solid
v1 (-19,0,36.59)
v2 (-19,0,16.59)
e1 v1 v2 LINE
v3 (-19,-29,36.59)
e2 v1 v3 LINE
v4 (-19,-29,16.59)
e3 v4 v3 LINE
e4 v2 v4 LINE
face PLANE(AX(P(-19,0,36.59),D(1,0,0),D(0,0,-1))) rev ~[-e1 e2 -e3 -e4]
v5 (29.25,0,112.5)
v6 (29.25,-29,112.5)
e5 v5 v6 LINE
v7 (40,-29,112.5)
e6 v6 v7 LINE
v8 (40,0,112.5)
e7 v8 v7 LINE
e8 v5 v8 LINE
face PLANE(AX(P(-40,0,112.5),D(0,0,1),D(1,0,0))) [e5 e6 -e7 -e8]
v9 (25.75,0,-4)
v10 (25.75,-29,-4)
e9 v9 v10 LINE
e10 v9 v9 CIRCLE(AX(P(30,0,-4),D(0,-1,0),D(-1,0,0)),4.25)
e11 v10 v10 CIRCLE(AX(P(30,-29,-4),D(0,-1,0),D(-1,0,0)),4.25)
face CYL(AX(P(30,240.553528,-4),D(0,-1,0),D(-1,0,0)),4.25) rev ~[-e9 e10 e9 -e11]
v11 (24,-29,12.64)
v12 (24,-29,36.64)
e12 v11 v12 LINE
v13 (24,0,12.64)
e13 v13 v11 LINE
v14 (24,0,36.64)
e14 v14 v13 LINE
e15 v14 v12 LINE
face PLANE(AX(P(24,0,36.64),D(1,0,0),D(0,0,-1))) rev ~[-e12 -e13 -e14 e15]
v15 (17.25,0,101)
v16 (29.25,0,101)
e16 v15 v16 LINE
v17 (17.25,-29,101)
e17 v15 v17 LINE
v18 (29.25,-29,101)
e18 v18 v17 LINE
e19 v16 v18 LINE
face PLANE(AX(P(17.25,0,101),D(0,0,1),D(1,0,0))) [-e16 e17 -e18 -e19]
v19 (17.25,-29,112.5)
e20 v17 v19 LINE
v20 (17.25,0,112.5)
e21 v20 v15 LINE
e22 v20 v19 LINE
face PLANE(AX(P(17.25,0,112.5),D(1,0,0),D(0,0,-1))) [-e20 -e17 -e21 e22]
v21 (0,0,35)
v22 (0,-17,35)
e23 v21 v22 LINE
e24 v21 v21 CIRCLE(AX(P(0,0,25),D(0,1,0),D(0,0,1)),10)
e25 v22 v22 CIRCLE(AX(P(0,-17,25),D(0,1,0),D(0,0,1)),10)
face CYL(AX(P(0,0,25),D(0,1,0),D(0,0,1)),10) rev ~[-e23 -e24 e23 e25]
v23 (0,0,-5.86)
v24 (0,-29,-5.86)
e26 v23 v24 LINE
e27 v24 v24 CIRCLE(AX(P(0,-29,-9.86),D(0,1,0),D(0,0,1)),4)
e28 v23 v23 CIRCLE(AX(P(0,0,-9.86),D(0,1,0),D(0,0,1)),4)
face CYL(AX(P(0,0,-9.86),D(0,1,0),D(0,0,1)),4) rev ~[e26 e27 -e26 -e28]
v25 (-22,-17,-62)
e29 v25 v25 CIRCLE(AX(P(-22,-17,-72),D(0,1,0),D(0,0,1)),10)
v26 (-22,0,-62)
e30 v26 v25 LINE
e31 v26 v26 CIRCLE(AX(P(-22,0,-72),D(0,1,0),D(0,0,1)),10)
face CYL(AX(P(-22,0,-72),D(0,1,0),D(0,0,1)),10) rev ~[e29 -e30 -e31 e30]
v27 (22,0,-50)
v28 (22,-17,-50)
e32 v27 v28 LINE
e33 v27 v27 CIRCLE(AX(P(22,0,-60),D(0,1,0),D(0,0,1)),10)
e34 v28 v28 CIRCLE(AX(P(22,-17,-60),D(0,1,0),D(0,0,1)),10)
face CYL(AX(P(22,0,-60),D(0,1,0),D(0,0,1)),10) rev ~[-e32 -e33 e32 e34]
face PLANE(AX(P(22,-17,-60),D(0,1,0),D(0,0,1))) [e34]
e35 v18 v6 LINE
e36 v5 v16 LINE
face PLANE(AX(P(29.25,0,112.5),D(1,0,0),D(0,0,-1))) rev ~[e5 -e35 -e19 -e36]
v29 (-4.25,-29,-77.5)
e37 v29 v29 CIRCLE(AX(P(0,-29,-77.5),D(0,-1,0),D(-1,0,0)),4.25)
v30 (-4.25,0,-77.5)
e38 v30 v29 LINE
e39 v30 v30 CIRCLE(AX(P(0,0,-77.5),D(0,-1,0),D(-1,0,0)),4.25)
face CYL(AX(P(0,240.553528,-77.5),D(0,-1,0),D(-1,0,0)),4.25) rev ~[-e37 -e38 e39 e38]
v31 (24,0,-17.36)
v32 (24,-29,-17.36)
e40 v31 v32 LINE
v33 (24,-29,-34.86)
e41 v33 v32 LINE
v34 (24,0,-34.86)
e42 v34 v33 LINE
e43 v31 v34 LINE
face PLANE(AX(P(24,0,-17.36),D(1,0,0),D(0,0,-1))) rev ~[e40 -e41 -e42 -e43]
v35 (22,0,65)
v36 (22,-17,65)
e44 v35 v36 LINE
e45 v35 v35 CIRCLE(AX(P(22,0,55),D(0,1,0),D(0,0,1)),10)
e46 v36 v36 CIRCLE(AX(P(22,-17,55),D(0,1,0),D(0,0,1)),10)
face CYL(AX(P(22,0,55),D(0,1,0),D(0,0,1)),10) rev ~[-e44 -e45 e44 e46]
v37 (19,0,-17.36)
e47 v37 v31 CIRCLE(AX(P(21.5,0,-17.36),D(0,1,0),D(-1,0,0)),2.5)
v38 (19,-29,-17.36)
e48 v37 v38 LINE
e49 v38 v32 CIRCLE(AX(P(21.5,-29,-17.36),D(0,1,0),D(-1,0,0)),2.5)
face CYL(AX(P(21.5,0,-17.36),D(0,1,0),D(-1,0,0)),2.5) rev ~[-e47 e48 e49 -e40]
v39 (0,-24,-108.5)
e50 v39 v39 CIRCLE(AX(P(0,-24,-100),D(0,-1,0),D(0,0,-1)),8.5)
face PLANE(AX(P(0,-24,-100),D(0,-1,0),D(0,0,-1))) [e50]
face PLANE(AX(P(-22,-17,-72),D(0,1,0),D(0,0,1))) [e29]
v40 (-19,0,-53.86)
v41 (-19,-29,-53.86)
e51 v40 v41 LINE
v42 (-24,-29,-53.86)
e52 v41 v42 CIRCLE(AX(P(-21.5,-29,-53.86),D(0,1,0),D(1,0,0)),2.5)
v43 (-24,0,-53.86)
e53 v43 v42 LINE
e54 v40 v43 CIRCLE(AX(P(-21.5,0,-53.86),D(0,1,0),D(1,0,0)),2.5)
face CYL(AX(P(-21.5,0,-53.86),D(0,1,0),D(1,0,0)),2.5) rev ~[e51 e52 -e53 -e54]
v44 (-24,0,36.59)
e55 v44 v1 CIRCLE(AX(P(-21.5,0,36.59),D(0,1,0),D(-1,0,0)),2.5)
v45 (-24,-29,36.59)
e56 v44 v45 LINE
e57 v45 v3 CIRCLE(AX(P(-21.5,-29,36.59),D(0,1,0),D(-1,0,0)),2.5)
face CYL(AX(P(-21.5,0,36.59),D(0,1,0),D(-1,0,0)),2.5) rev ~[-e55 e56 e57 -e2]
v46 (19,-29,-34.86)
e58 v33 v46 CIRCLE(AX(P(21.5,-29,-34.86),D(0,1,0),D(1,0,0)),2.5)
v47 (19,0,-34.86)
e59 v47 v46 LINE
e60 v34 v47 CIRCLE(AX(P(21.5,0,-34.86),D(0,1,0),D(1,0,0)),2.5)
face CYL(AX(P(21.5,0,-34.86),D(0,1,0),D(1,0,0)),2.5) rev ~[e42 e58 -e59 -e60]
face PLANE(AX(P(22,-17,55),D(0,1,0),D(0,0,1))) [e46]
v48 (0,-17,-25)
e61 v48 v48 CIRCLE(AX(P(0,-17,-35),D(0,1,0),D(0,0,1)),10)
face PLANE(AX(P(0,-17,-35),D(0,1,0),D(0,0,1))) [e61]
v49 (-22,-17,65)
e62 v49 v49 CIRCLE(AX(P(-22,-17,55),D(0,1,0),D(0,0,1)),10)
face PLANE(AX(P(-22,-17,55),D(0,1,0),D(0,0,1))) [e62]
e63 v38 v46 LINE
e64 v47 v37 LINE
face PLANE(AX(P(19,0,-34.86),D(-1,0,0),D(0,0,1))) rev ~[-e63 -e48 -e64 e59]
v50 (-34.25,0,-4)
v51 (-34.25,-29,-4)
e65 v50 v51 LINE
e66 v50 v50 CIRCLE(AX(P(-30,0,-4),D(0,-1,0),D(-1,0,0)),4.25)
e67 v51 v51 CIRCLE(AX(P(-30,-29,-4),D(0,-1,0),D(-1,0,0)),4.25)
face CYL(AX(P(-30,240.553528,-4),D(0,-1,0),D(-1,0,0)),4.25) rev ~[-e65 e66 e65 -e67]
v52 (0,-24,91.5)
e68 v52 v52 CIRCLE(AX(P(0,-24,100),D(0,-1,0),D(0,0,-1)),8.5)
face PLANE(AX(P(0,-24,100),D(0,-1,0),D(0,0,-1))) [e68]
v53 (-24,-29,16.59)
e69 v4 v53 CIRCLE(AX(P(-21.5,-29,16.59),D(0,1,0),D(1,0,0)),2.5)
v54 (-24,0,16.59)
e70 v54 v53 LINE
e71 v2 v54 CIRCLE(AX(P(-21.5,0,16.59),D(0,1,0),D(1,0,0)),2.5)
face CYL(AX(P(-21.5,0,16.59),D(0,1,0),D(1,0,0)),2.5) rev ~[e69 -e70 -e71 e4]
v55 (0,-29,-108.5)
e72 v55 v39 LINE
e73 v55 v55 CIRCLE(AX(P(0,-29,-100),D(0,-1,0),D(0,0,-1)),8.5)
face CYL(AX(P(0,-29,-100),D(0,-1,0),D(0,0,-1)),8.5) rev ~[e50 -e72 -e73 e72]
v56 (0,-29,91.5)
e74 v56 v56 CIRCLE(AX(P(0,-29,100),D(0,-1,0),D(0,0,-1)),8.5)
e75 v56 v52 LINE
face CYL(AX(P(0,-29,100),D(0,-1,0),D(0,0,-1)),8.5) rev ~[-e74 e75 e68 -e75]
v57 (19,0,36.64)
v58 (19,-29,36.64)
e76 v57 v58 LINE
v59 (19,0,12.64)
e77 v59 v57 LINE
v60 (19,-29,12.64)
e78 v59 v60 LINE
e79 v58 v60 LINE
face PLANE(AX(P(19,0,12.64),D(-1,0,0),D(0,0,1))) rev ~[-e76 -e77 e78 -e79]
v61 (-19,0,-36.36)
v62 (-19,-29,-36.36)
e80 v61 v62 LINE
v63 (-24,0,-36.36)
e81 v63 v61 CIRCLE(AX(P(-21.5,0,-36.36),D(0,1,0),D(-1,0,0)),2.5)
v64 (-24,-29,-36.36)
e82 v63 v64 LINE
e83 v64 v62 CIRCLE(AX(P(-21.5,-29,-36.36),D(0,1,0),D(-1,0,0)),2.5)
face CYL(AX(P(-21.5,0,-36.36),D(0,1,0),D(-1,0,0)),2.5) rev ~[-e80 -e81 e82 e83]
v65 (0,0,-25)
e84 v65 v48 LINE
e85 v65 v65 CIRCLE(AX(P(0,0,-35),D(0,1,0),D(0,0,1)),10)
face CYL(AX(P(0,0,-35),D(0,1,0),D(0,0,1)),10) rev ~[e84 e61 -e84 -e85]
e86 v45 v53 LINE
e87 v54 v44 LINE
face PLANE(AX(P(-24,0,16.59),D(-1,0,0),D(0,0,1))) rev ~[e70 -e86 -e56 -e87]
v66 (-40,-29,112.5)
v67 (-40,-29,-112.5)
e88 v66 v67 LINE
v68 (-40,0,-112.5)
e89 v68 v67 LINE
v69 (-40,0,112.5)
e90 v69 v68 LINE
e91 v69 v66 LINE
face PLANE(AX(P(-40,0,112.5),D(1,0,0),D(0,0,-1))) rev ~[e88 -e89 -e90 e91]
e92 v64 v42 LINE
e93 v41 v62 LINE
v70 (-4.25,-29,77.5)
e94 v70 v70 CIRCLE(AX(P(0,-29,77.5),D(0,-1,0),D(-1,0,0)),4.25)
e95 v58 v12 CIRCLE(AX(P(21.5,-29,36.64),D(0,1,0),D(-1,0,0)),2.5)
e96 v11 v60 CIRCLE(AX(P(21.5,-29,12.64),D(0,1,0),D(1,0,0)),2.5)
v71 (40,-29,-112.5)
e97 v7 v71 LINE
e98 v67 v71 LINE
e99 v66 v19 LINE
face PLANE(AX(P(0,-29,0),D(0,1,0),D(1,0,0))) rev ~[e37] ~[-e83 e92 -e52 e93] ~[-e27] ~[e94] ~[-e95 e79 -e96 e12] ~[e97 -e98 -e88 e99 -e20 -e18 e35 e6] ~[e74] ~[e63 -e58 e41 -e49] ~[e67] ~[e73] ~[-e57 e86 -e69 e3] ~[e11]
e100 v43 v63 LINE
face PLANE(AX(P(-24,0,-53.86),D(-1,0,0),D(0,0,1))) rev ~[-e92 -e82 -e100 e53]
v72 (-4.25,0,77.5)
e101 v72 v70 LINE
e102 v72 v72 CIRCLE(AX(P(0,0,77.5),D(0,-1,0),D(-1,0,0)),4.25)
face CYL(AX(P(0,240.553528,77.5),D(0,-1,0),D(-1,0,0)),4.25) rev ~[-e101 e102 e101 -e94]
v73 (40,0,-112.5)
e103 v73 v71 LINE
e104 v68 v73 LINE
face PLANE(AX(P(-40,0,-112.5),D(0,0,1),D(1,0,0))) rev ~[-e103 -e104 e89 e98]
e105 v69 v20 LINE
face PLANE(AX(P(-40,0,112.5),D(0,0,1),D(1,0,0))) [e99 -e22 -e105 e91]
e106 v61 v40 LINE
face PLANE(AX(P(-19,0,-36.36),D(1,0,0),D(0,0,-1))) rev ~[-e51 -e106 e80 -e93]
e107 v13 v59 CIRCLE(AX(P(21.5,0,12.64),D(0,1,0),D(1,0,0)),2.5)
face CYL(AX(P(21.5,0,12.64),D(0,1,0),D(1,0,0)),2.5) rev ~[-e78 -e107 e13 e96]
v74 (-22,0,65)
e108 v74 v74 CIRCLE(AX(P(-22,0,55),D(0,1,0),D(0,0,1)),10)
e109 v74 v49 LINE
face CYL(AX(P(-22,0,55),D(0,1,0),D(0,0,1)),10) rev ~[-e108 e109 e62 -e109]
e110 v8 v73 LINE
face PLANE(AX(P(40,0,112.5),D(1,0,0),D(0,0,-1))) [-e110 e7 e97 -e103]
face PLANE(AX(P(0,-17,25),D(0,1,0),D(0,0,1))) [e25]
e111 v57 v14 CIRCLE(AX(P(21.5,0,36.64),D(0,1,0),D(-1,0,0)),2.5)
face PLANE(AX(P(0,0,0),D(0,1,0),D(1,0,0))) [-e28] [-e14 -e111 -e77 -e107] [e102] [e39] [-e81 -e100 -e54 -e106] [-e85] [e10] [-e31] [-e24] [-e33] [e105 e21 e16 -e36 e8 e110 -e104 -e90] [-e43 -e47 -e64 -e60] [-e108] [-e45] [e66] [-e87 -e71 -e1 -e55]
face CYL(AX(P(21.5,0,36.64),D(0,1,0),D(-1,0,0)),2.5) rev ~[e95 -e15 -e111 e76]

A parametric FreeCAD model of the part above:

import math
import FreeCAD as App
import Part
import Sketcher

V = App.Vector
Q = App.Units.Quantity

doc = App.newDocument("Part")
body = doc.addObject("PartDesign::Body", "Body")

# Sketch on XZ plane
sketch1 = body.newObject("Sketcher::SketchObject", "Sketch")
sketch1.AttachmentSupport = (doc.getObject("XZ_Plane"), [""])
sketch1.MapMode = "FlatFace"
sketch1.addGeometry(Part.LineSegment(V(-40, -112, 0), V(-40, 112, 0)), False)
sketch1.addGeometry(Part.LineSegment(V(-40, 112, 0), V(40, 112, 0)), False)
sketch1.addGeometry(Part.LineSegment(V(40, 112, 0), V(40, -112, 0)), False)
sketch1.addGeometry(Part.LineSegment(V(40, -112, 0), V(-40, -112, 0)), False)
sketch1.addConstraint(Sketcher.Constraint("Coincident", 0, 2, 1, 1))
sketch1.addConstraint(Sketcher.Constraint("Coincident", 1, 2, 2, 1))
sketch1.addConstraint(Sketcher.Constraint("Coincident", 2, 2, 3, 1))
sketch1.addConstraint(Sketcher.Constraint("Coincident", 3, 2, 0, 1))
sketch1.addConstraint(Sketcher.Constraint("Vertical", 0))
sketch1.addConstraint(Sketcher.Constraint("Horizontal", 1))
sketch1.addConstraint(Sketcher.Constraint("Vertical", 2))
sketch1.addConstraint(Sketcher.Constraint("Horizontal", 3))
sketch1.addConstraint(Sketcher.Constraint("Symmetric", 0, 2, 2, 2, -1, 1))
sketch1.addConstraint(Sketcher.Constraint("DistanceX", 1, 1, 1, 2, Q("80 mm")))
sketch1.addConstraint(Sketcher.Constraint("DistanceY", 0, 1, 0, 2, Q("225 mm")))
pad1 = body.newObject("PartDesign::Pad", "Pad")
pad1.Profile = sketch1
pad1.Length = 29

# Sketch on XZ plane
sketch2 = body.newObject("Sketcher::SketchObject", "Sketch001")
sketch2.AttachmentSupport = (doc.getObject("XZ_Plane"), [""])
sketch2.MapMode = "FlatFace"
sketch2.addGeometry(Part.LineSegment(V(-19, -36.4, 0), V(-19, -53.9, 0)), False)
sketch2.addGeometry(Part.ArcOfCircle(Part.Circle(V(-21.5, -53.9, 0), V(0, 0, 1), 2.5), math.radians(180), math.radians(360)), False)
sketch2.addGeometry(Part.LineSegment(V(-24, -53.9, 0), V(-24, -36.4, 0)), False)
sketch2.addGeometry(Part.ArcOfCircle(Part.Circle(V(-21.5, -36.4, 0), V(0, 0, 1), 2.5), math.radians(0), math.radians(180)), False)
sketch2.addConstraint(Sketcher.Constraint("Tangent", 0, 2, 1, 2))
sketch2.addConstraint(Sketcher.Constraint("Tangent", 1, 1, 2, 1))
sketch2.addConstraint(Sketcher.Constraint("Tangent", 2, 2, 3, 2))
sketch2.addConstraint(Sketcher.Constraint("Tangent", 3, 1, 0, 1))
sketch2.addConstraint(Sketcher.Constraint("Vertical", 0))
sketch2.addConstraint(Sketcher.Constraint("Vertical", 2))
sketch2.addConstraint(Sketcher.Constraint("Radius", 1, Q("2.5 mm")))
sketch2.addConstraint(Sketcher.Constraint("DistanceY", 0, 2, 0, 1, Q("17.5 mm")))
sketch2.addConstraint(Sketcher.Constraint("DistanceX", 0, 2, -1, 1, Q("19 mm")))
sketch2.addConstraint(Sketcher.Constraint("DistanceY", 1, 3, -1, 1, Q("53.86 mm")))
pocket1 = body.newObject("PartDesign::Pocket", "Pocket")
pocket1.Profile = sketch2
pocket1.Type = "UpToFirst"
pocket1.Reversed = True

# Sketch on XZ plane
sketch3 = body.newObject("Sketcher::SketchObject", "Sketch002")
sketch3.AttachmentSupport = (doc.getObject("XZ_Plane"), [""])
sketch3.MapMode = "FlatFace"
sketch3.addGeometry(Part.LineSegment(V(-19, 36.6, 0), V(-19, 16.6, 0)), False)
sketch3.addGeometry(Part.ArcOfCircle(Part.Circle(V(-21.5, 16.6, 0), V(0, 0, 1), 2.5), math.radians(180), math.radians(360)), False)
sketch3.addGeometry(Part.LineSegment(V(-24, 16.6, 0), V(-24, 36.6, 0)), False)
sketch3.addGeometry(Part.ArcOfCircle(Part.Circle(V(-21.5, 36.6, 0), V(0, 0, 1), 2.5), math.radians(0), math.radians(180)), False)
sketch3.addConstraint(Sketcher.Constraint("Tangent", 0, 2, 1, 2))
sketch3.addConstraint(Sketcher.Constraint("Tangent", 1, 1, 2, 1))
sketch3.addConstraint(Sketcher.Constraint("Tangent", 2, 2, 3, 2))
sketch3.addConstraint(Sketcher.Constraint("Tangent", 3, 1, 0, 1))
sketch3.addConstraint(Sketcher.Constraint("Vertical", 0))
sketch3.addConstraint(Sketcher.Constraint("Vertical", 2))
sketch3.addConstraint(Sketcher.Constraint("Radius", 1, Q("2.5 mm")))
sketch3.addConstraint(Sketcher.Constraint("DistanceY", 0, 2, 0, 1, Q("20 mm")))
sketch3.addConstraint(Sketcher.Constraint("DistanceX", 0, 2, -1, 1, Q("19 mm")))
sketch3.addConstraint(Sketcher.Constraint("DistanceY", -1, 1, 1, 3, Q("16.59 mm")))
pocket2 = body.newObject("PartDesign::Pocket", "Pocket001")
pocket2.Profile = sketch3
pocket2.Type = "UpToFirst"
pocket2.Reversed = True

# Sketch on XZ plane
sketch4 = body.newObject("Sketcher::SketchObject", "Sketch003")
sketch4.AttachmentSupport = (doc.getObject("XZ_Plane"), [""])
sketch4.MapMode = "FlatFace"
sketch4.addGeometry(Part.LineSegment(V(24, -17.4, 0), V(24, -34.9, 0)), False)
sketch4.addGeometry(Part.ArcOfCircle(Part.Circle(V(21.5, -34.9, 0), V(0, 0, 1), 2.5), math.radians(180), math.radians(360)), False)
sketch4.addGeometry(Part.LineSegment(V(19, -34.9, 0), V(19, -17.4, 0)), False)
sketch4.addGeometry(Part.ArcOfCircle(Part.Circle(V(21.5, -17.4, 0), V(0, 0, 1), 2.5), math.radians(0), math.radians(180)), False)
sketch4.addConstraint(Sketcher.Constraint("Tangent", 0, 2, 1, 2))
sketch4.addConstraint(Sketcher.Constraint("Tangent", 1, 1, 2, 1))
sketch4.addConstraint(Sketcher.Constraint("Tangent", 2, 2, 3, 2))
sketch4.addConstraint(Sketcher.Constraint("Tangent", 3, 1, 0, 1))
sketch4.addConstraint(Sketcher.Constraint("Vertical", 0))
sketch4.addConstraint(Sketcher.Constraint("Vertical", 2))
sketch4.addConstraint(Sketcher.Constraint("Radius", 1, Q("2.5 mm")))
sketch4.addConstraint(Sketcher.Constraint("DistanceY", 0, 2, 0, 1, Q("17.5 mm")))
sketch4.addConstraint(Sketcher.Constraint("DistanceX", -1, 1, 0, 2, Q("24 mm")))
sketch4.addConstraint(Sketcher.Constraint("DistanceY", 1, 3, -1, 1, Q("34.86 mm")))
pocket3 = body.newObject("PartDesign::Pocket", "Pocket002")
pocket3.Profile = sketch4
pocket3.Type = "UpToFirst"
pocket3.Reversed = True

# Sketch on XZ plane
sketch5 = body.newObject("Sketcher::SketchObject", "Sketch004")
sketch5.AttachmentSupport = (doc.getObject("XZ_Plane"), [""])
sketch5.MapMode = "FlatFace"
sketch5.addGeometry(Part.LineSegment(V(24, 36.6, 0), V(24, 12.6, 0)), False)
sketch5.addGeometry(Part.ArcOfCircle(Part.Circle(V(21.5, 12.6, 0), V(0, 0, 1), 2.5), math.radians(180), math.radians(360)), False)
sketch5.addGeometry(Part.LineSegment(V(19, 12.6, 0), V(19, 36.6, 0)), False)
sketch5.addGeometry(Part.ArcOfCircle(Part.Circle(V(21.5, 36.6, 0), V(0, 0, 1), 2.5), math.radians(0), math.radians(180)), False)
sketch5.addConstraint(Sketcher.Constraint("Tangent", 0, 2, 1, 2))
sketch5.addConstraint(Sketcher.Constraint("Tangent", 1, 1, 2, 1))
sketch5.addConstraint(Sketcher.Constraint("Tangent", 2, 2, 3, 2))
sketch5.addConstraint(Sketcher.Constraint("Tangent", 3, 1, 0, 1))
sketch5.addConstraint(Sketcher.Constraint("Vertical", 0))
sketch5.addConstraint(Sketcher.Constraint("Vertical", 2))
sketch5.addConstraint(Sketcher.Constraint("Radius", 1, Q("2.5 mm")))
sketch5.addConstraint(Sketcher.Constraint("DistanceY", 0, 2, 0, 1, Q("24 mm")))
sketch5.addConstraint(Sketcher.Constraint("DistanceX", -1, 1, 0, 2, Q("24 mm")))
sketch5.addConstraint(Sketcher.Constraint("DistanceY", -1, 1, 1, 3, Q("12.64 mm")))
pocket4 = body.newObject("PartDesign::Pocket", "Pocket003")
pocket4.Profile = sketch5
pocket4.Type = "UpToFirst"
pocket4.Reversed = True

# Sketch on XZ plane
sketch6 = body.newObject("Sketcher::SketchObject", "Sketch005")
sketch6.AttachmentSupport = (doc.getObject("XZ_Plane"), [""])
sketch6.MapMode = "FlatFace"
sketch6.addGeometry(Part.Circle(V(-22, -72, 0), V(0, 0, 1), 10), False)
sketch6.addGeometry(Part.Circle(V(22, -60, 0), V(0, 0, 1), 10), False)
sketch6.addGeometry(Part.Circle(V(0, -35, 0), V(0, 0, 1), 10), False)
sketch6.addGeometry(Part.Circle(V(0, 25, 0), V(0, 0, 1), 10), False)
sketch6.addGeometry(Part.Circle(V(22, 55, 0), V(0, 0, 1), 10), False)
sketch6.addGeometry(Part.Circle(V(-22, 55, 0), V(0, 0, 1), 10), False)
sketch6.addConstraint(Sketcher.Constraint("Equal", 0, 1))
sketch6.addConstraint(Sketcher.Constraint("Equal", 1, 2))
sketch6.addConstraint(Sketcher.Constraint("Equal", 2, 3))
sketch6.addConstraint(Sketcher.Constraint("Equal", 3, 4))
sketch6.addConstraint(Sketcher.Constraint("Equal", 4, 5))
sketch6.addConstraint(Sketcher.Constraint("Symmetric", 4, 3, 5, 3, -2))
sketch6.addConstraint(Sketcher.Constraint("PointOnObject", 2, 3, -2))
sketch6.addConstraint(Sketcher.Constraint("PointOnObject", 3, 3, -2))
sketch6.addConstraint(Sketcher.Constraint("Vertical", 1, 3, 4, 3))
sketch6.addConstraint(Sketcher.Constraint("Vertical", 0, 3, 5, 3))
sketch6.addConstraint(Sketcher.Constraint("Diameter", 0, Q("20 mm")))
sketch6.addConstraint(Sketcher.Constraint("DistanceX", 0, 3, -1, 1, Q("22 mm")))
sketch6.addConstraint(Sketcher.Constraint("DistanceY", 0, 3, -1, 1, Q("72 mm")))
sketch6.addConstraint(Sketcher.Constraint("DistanceY", 1, 3, -1, 1, Q("60 mm")))
sketch6.addConstraint(Sketcher.Constraint("DistanceY", 2, 3, -1, 1, Q("35 mm")))
sketch6.addConstraint(Sketcher.Constraint("DistanceY", -1, 1, 3, 3, Q("25 mm")))
sketch6.addConstraint(Sketcher.Constraint("DistanceY", -1, 1, 4, 3, Q("55 mm")))
pocket5 = body.newObject("PartDesign::Pocket", "Pocket004")
pocket5.Profile = sketch6
pocket5.Length = 17
pocket5.Reversed = True

# Sketch on XZ plane
sketch7 = body.newObject("Sketcher::SketchObject", "Sketch006")
sketch7.AttachmentSupport = (doc.getObject("XZ_Plane"), [""])
sketch7.MapMode = "FlatFace"
sketch7.AttachmentOffset = App.Placement(V(0, 0, 29), App.Rotation())
sketch7.addGeometry(Part.Circle(V(0, 100, 0), V(0, 0, 1), 8), False)
sketch7.addGeometry(Part.Circle(V(0, -100, 0), V(0, 0, 1), 8), False)
sketch7.addConstraint(Sketcher.Constraint("Equal", 0, 1))
sketch7.addConstraint(Sketcher.Constraint("Symmetric", 0, 3, 1, 3, -1, 1))
sketch7.addConstraint(Sketcher.Constraint("PointOnObject", 0, 3, -2))
sketch7.addConstraint(Sketcher.Constraint("Diameter", 0, Q("17 mm")))
sketch7.addConstraint(Sketcher.Constraint("DistanceY", -1, 1, 0, 3, Q("100 mm")))
pocket6 = body.newObject("PartDesign::Pocket", "Pocket005")
pocket6.Profile = sketch7
pocket6.Length = 5

# Sketch on XZ plane
sketch8 = body.newObject("Sketcher::SketchObject", "Sketch007")
sketch8.AttachmentSupport = (doc.getObject("XZ_Plane"), [""])
sketch8.MapMode = "FlatFace"
sketch8.addGeometry(Part.LineSegment(V(17, 101, 0), V(17, 112, 0)), False)
sketch8.addGeometry(Part.LineSegment(V(17, 112, 0), V(29, 112, 0)), False)
sketch8.addGeometry(Part.LineSegment(V(29, 112, 0), V(29, 101, 0)), False)
sketch8.addGeometry(Part.LineSegment(V(29, 101, 0), V(17, 101, 0)), False)
sketch8.addConstraint(Sketcher.Constraint("Coincident", 0, 2, 1, 1))
sketch8.addConstraint(Sketcher.Constraint("Coincident", 1, 2, 2, 1))
sketch8.addConstraint(Sketcher.Constraint("Coincident", 2, 2, 3, 1))
sketch8.addConstraint(Sketcher.Constraint("Coincident", 3, 2, 0, 1))
sketch8.addConstraint(Sketcher.Constraint("Vertical", 0))
sketch8.addConstraint(Sketcher.Constraint("Horizontal", 1))
sketch8.addConstraint(Sketcher.Constraint("Vertical", 2))
sketch8.addConstraint(Sketcher.Constraint("Horizontal", 3))
sketch8.addConstraint(Sketcher.Constraint("DistanceX", 1, 1, 1, 2, Q("12 mm")))
sketch8.addConstraint(Sketcher.Constraint("DistanceY", 0, 1, 0, 2, Q("11.5 mm")))
sketch8.addConstraint(Sketcher.Constraint("DistanceY", -1, 1, 2, 2, Q("101 mm")))
sketch8.addConstraint(Sketcher.Constraint("DistanceX", -1, 1, 0, 2, Q("17.25 mm")))
pocket7 = body.newObject("PartDesign::Pocket", "Pocket006")
pocket7.Profile = sketch8
pocket7.Type = "UpToFirst"
pocket7.Reversed = True

# Sketch on XZ plane
sketch9 = body.newObject("Sketcher::SketchObject", "Sketch008")
sketch9.AttachmentSupport = (doc.getObject("XZ_Plane"), [""])
sketch9.MapMode = "FlatFace"
sketch9.addGeometry(Part.Circle(V(0, 77.5, 0), V(0, 0, 1), 4.2), False)
sketch9.addGeometry(Part.Circle(V(30, -4, 0), V(0, 0, 1), 4.2), False)
sketch9.addGeometry(Part.Circle(V(-30, -4, 0), V(0, 0, 1), 4.2), False)
sketch9.addGeometry(Part.Circle(V(0, -77.5, 0), V(0, 0, 1), 4.2), False)
sketch9.addConstraint(Sketcher.Constraint("Equal", 0, 1))
sketch9.addConstraint(Sketcher.Constraint("Equal", 1, 2))
sketch9.addConstraint(Sketcher.Constraint("Equal", 2, 3))
sketch9.addConstraint(Sketcher.Constraint("Symmetric", 0, 3, 3, 3, -1, 1))
sketch9.addConstraint(Sketcher.Constraint("Symmetric", 1, 3, 2, 3, -2))
sketch9.addConstraint(Sketcher.Constraint("PointOnObject", 0, 3, -2))
sketch9.addConstraint(Sketcher.Constraint("Diameter", 0, Q("8.5 mm")))
sketch9.addConstraint(Sketcher.Constraint("DistanceX", -1, 1, 1, 3, Q("30 mm")))
sketch9.addConstraint(Sketcher.Constraint("DistanceY", 1, 3, -1, 1, Q("4 mm")))
sketch9.addConstraint(Sketcher.Constraint("DistanceY", 3, 3, 0, 3, Q("155 mm")))
doc.recompute()
hole = body.newObject("PartDesign::Hole", "Hole")
hole.Profile = sketch9
hole.ThreadType = "None"
hole.Diameter = 8.5
hole.DepthType = "ThroughAll"
hole.Reversed = True

# Sketch on XZ plane
sketch10 = body.newObject("Sketcher::SketchObject", "Sketch009")
sketch10.AttachmentSupport = (doc.getObject("XZ_Plane"), [""])
sketch10.MapMode = "FlatFace"
sketch10.addGeometry(Part.Circle(V(0, -9.9, 0), V(0, 0, 1), 4), False)
sketch10.addConstraint(Sketcher.Constraint("PointOnObject", 0, 3, -2))
sketch10.addConstraint(Sketcher.Constraint("Diameter", 0, Q("8 mm")))
sketch10.addConstraint(Sketcher.Constraint("DistanceY", 0, 3, -1, 1, Q("9.86 mm")))
pocket8 = body.newObject("PartDesign::Pocket", "Pocket007")
pocket8.Profile = sketch10
pocket8.Type = "UpToFirst"
pocket8.Reversed = True

doc.recompute()
